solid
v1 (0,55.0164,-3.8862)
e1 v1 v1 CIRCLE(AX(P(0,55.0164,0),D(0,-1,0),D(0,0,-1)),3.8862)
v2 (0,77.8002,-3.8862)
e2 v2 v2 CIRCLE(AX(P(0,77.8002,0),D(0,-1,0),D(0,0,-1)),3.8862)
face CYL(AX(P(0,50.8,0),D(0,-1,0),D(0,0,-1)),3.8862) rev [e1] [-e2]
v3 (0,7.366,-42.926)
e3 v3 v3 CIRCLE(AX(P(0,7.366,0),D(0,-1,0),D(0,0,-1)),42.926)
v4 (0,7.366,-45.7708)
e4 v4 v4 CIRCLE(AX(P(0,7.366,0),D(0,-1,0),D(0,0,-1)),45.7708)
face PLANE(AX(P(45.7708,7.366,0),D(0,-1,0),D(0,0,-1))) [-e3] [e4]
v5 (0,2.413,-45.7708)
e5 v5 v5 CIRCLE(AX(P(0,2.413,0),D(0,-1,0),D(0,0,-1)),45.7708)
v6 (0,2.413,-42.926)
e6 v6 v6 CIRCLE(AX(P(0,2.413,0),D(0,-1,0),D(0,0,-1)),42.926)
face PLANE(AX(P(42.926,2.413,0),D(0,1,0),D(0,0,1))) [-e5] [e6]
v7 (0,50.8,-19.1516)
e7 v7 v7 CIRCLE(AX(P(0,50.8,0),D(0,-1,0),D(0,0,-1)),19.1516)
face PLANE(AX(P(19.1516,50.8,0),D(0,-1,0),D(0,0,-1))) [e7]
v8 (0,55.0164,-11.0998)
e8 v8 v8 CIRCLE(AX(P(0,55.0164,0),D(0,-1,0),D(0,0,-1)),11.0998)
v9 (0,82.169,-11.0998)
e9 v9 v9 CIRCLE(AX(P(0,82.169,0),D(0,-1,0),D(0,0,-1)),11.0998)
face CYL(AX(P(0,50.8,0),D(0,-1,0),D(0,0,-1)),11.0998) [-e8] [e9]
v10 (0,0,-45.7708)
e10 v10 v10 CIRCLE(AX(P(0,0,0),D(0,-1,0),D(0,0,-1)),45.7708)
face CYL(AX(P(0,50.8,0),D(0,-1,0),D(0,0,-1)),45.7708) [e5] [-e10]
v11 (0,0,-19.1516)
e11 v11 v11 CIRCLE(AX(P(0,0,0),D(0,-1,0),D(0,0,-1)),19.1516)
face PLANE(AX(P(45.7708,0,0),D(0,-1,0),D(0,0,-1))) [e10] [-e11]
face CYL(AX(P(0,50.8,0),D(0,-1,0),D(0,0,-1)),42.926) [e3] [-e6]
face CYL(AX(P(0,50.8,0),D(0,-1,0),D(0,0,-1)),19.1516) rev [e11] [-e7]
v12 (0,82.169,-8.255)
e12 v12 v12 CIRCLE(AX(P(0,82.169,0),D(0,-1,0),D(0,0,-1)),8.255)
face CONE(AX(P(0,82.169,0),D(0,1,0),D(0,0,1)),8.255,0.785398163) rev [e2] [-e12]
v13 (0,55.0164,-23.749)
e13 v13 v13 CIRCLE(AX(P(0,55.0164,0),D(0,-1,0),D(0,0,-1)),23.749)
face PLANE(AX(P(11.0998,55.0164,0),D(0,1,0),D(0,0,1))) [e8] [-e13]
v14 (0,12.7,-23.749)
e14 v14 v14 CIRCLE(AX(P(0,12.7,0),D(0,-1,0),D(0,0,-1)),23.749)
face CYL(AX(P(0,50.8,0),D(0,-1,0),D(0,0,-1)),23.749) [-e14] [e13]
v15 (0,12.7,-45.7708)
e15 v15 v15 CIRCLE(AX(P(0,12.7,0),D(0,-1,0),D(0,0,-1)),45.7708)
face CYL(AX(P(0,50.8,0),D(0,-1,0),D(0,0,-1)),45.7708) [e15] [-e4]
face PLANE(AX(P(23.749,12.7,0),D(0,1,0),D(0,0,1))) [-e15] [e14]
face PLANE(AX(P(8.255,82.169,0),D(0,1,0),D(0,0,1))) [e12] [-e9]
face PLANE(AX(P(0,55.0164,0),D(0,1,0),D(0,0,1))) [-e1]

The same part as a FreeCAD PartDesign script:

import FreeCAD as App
import Part
import Sketcher
Q = App.Units.Quantity


def add_polygon(sketch, points):
    """Adds a closed chain of lines whose ends are joined by coincident constraints."""
    first, n = sketch.GeometryCount, len(points)
    for a, b in zip(points, points[1:] + points[:1]):
        sketch.addGeometry(Part.LineSegment(App.Vector(*a, 0), App.Vector(*b, 0)), False)
    for i in range(n):
        sketch.addConstraint(Sketcher.Constraint("Coincident", first + i, 2, first + (i + 1) % n, 1))

doc = App.newDocument("Part")
body = doc.addObject("PartDesign::Body", "Body")

sketch1 = body.newObject("Sketcher::SketchObject", "Sketch")
sketch1.AttachmentSupport = (doc.getObject("XY_Plane"), [""])
sketch1.MapMode = "FlatFace"
add_polygon(sketch1, [(19.1516, 50.8), (19.1516, 0), (45.7708, 0), (45.7708, 2.413), (42.926, 2.413), (42.926, 7.366), (45.7708, 7.366), (45.7708, 12.7), (23.749, 12.7), (23.749, 55.0164), (11.0998, 55.0164), (11.0998, 82.169), (8.255, 82.169), (3.8862, 77.8002), (3.8862, 55.0164), (0, 55.0164), (0, 50.8)])
sketch1.addConstraint([
    Sketcher.Constraint("Vertical", 0),
    Sketcher.Constraint("Horizontal", 1),
    Sketcher.Constraint("Vertical", 2),
    Sketcher.Constraint("Horizontal", 3),
    Sketcher.Constraint("Vertical", 4),
    Sketcher.Constraint("Horizontal", 5),
    Sketcher.Constraint("Vertical", 6),
    Sketcher.Constraint("Horizontal", 7),
    Sketcher.Constraint("Vertical", 8),
    Sketcher.Constraint("Horizontal", 9),
    Sketcher.Constraint("Vertical", 10),
    Sketcher.Constraint("Horizontal", 11),
    Sketcher.Constraint("Vertical", 13),
    Sketcher.Constraint("Horizontal", 14),
    Sketcher.Constraint("Vertical", 15),
    Sketcher.Constraint("Horizontal", 16),
    Sketcher.Constraint("PointOnObject", 0, 2, -1),
    Sketcher.Constraint("PointOnObject", 14, 2, -2),
    Sketcher.Constraint("Horizontal", 9, 2, 13, 2),
    Sketcher.Constraint("Vertical", 2, 2, 5, 2),
    Sketcher.Constraint("Equal", 5, 11),
    Sketcher.Constraint("DistanceY", 0, 2, 0, 1, Q("2 in")),
    Sketcher.Constraint("Angle", 12, Q("-135 deg")),
    Sketcher.Constraint("DistanceY", 6, 1, 6, 2, Q("0.21 in")),
    Sketcher.Constraint("DistanceY", -1, 1, 6, 2, Q("0.5 in")),
    Sketcher.Constraint("DistanceX", 1, 1, 1, 2, Q("1.048 in")),
    Sketcher.Constraint("DistanceX", 3, 2, 3, 1, Q("0.112 in")),
    Sketcher.Constraint("DistanceX", 7, 2, 7, 1, Q("0.867 in")),
    Sketcher.Constraint("DistanceX", 9, 2, 9, 1, Q("0.498 in")),
    Sketcher.Constraint("DistanceX", 14, 2, 14, 1, Q("0.153 in")),
    Sketcher.Constraint("DistanceX", 16, 1, 16, 2, Q("0.754 in")),
    Sketcher.Constraint("DistanceY", 2, 1, 2, 2, Q("0.095 in")),
    Sketcher.Constraint("DistanceY", 8, 1, 8, 2, Q("1.666 in")),
    Sketcher.Constraint("DistanceY", 10, 1, 10, 2, Q("1.069 in")),
])
revolution = body.newObject("PartDesign::Revolution", "Revolution")
revolution.Profile = sketch1
revolution.ReferenceAxis = (sketch1, ["V_Axis"])
revolution.Angle = 360

doc.recompute()
